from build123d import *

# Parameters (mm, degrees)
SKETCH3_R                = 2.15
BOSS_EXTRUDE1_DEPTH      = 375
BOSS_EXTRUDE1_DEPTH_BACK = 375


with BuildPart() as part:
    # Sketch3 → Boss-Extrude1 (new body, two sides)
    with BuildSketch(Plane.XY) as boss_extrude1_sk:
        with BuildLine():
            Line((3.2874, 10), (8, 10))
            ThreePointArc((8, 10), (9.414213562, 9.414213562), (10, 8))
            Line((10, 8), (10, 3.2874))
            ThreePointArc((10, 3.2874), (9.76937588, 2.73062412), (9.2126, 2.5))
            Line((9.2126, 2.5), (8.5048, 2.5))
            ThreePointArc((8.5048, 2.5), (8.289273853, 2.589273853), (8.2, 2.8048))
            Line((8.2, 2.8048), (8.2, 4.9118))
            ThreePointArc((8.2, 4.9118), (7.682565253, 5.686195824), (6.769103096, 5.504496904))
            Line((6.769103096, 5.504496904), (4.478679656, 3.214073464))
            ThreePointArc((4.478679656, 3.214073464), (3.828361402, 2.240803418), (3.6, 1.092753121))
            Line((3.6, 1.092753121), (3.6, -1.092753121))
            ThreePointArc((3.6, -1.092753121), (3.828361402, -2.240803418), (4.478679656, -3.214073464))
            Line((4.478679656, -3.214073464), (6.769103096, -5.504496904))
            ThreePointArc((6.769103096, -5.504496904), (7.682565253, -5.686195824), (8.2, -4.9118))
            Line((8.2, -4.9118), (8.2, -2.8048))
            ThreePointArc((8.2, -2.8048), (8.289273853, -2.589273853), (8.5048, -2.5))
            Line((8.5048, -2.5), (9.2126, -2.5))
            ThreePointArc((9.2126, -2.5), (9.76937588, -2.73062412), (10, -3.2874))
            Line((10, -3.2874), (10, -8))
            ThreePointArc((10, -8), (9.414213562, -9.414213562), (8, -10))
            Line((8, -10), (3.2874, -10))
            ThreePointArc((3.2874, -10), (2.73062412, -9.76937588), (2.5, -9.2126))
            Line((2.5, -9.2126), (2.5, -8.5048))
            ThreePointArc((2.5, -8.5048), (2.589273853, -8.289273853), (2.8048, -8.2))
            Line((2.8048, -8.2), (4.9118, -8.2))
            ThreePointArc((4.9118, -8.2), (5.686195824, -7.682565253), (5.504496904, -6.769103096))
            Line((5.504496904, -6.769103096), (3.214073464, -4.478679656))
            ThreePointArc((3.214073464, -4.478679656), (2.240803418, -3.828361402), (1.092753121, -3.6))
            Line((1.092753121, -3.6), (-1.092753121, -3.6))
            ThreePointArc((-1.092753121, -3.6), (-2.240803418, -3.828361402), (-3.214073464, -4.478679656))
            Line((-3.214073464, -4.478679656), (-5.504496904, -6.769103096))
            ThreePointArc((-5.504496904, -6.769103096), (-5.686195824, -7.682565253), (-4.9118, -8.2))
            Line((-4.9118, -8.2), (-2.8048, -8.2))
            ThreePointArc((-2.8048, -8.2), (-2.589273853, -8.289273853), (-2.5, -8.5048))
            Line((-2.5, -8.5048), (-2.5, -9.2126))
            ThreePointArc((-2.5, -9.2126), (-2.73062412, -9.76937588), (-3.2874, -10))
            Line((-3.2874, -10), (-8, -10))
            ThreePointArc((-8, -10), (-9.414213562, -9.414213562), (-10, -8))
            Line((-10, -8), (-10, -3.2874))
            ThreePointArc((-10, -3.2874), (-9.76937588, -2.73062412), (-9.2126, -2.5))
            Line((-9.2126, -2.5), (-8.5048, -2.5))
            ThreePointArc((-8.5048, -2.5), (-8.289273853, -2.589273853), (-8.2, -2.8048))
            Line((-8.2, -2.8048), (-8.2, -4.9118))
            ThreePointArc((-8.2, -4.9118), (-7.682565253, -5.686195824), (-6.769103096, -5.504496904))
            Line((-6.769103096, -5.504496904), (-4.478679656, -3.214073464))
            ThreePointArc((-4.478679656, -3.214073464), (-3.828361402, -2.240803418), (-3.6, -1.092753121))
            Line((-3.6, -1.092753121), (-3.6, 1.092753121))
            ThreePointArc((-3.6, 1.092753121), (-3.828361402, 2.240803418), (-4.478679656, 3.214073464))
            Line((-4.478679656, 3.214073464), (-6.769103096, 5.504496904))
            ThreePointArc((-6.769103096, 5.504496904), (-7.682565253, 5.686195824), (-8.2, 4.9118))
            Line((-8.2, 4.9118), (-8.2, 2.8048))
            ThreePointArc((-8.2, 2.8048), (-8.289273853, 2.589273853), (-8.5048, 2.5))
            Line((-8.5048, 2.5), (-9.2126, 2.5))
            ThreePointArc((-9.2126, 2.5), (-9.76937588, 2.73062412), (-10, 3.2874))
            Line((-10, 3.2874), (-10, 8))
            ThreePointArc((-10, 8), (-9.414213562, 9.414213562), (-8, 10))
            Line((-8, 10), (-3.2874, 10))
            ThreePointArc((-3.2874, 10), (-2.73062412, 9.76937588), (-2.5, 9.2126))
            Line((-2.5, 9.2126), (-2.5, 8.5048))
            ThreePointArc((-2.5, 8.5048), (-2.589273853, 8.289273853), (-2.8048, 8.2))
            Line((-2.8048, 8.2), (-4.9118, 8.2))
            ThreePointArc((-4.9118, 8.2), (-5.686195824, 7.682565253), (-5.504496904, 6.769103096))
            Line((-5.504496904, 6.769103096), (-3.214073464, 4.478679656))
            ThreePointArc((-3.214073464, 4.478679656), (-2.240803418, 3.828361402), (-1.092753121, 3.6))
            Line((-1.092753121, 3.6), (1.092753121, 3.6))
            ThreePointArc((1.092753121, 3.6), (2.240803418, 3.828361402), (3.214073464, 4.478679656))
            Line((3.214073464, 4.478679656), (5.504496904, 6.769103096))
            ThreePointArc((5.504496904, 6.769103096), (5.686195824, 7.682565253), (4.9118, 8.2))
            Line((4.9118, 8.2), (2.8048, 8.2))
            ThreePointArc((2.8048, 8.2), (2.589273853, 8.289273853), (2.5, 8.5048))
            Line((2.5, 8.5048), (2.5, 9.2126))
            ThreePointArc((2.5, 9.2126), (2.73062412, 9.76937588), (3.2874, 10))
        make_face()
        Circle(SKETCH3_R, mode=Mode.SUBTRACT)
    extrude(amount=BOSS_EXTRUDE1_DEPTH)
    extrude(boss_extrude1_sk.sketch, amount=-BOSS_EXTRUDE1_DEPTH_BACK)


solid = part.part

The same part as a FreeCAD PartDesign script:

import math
import FreeCAD as App
import Part
import Sketcher
from FreeCAD import Vector

doc = App.newDocument("Part")
body = doc.addObject("PartDesign::Body", "Body")

# Sketch on XY plane
sketch1 = body.newObject("Sketcher::SketchObject", "Sketch")
sketch1.AttachmentSupport = (doc.getObject("XY_Plane"), [""])
sketch1.MapMode = "FlatFace"
sketch1.addGeometry([
    Part.LineSegment(Vector(8, 10, 0), Vector(3.2874, 10, 0)),  # 0
    Part.ArcOfCircle(Part.Circle(Vector(3.2874, 9.2126, 0), Vector(0, 0, 1), 0.7874), math.radians(90), math.radians(180)),  # 1
    Part.LineSegment(Vector(2.5, 9.2126, 0), Vector(2.5, 8.5048, 0)),  # 2
    Part.ArcOfCircle(Part.Circle(Vector(2.8048, 8.5048, 0), Vector(0, 0, 1), 0.3048), math.radians(180), math.radians(270)),  # 3
    Part.LineSegment(Vector(2.8048, 8.2, 0), Vector(4.9118, 8.2, 0)),  # 4
    Part.ArcOfCircle(Part.Circle(Vector(4.9118, 7.3618, 0), Vector(0, 0, 1), 0.8382), math.radians(-45), math.radians(90)),  # 5
    Part.LineSegment(Vector(5.504497, 6.769103, 0), Vector(3.214073, 4.47868, 0)),  # 6
    Part.ArcOfCircle(Part.Circle(Vector(1.092753, 6.6, 0), Vector(0, 0, 1), 3), math.radians(-90), math.radians(-45)),  # 7
    Part.LineSegment(Vector(1.092753, 3.6, 0), Vector(-1.092753, 3.6, 0)),  # 8
    Part.ArcOfCircle(Part.Circle(Vector(-1.092753, 6.6, 0), Vector(0, 0, 1), 3), math.radians(-135), math.radians(-90)),  # 9
    Part.LineSegment(Vector(-3.214073, 4.47868, 0), Vector(-5.504497, 6.769103, 0)),  # 10
    Part.ArcOfCircle(Part.Circle(Vector(-4.9118, 7.3618, 0), Vector(0, 0, 1), 0.8382), math.radians(90), math.radians(225)),  # 11
    Part.LineSegment(Vector(-4.9118, 8.2, 0), Vector(-2.8048, 8.2, 0)),  # 12
    Part.ArcOfCircle(Part.Circle(Vector(-2.8048, 8.5048, 0), Vector(0, 0, 1), 0.3048), math.radians(-90), math.radians(0)),  # 13
    Part.LineSegment(Vector(-2.5, 8.5048, 0), Vector(-2.5, 9.2126, 0)),  # 14
    Part.ArcOfCircle(Part.Circle(Vector(-3.2874, 9.2126, 0), Vector(0, 0, 1), 0.7874), math.radians(0), math.radians(90)),  # 15
    Part.LineSegment(Vector(-3.2874, 10, 0), Vector(-8, 10, 0)),  # 16
    Part.ArcOfCircle(Part.Circle(Vector(-8, 8, 0), Vector(0, 0, 1), 2), math.radians(90), math.radians(180)),  # 17
    Part.LineSegment(Vector(-10, 8, 0), Vector(-10, 3.2874, 0)),  # 18
    Part.ArcOfCircle(Part.Circle(Vector(-9.2126, 3.2874, 0), Vector(0, 0, 1), 0.7874), math.radians(180), math.radians(270)),  # 19
    Part.LineSegment(Vector(-9.2126, 2.5, 0), Vector(-8.5048, 2.5, 0)),  # 20
    Part.ArcOfCircle(Part.Circle(Vector(-8.5048, 2.8048, 0), Vector(0, 0, 1), 0.3048), math.radians(-90), math.radians(0)),  # 21
    Part.LineSegment(Vector(-8.2, 2.8048, 0), Vector(-8.2, 4.9118, 0)),  # 22
    Part.ArcOfCircle(Part.Circle(Vector(-7.3618, 4.9118, 0), Vector(0, 0, 1), 0.8382), math.radians(45), math.radians(180)),  # 23
    Part.LineSegment(Vector(-6.769103, 5.504497, 0), Vector(-4.47868, 3.214073, 0)),  # 24
    Part.ArcOfCircle(Part.Circle(Vector(-6.6, 1.092753, 0), Vector(0, 0, 1), 3), math.radians(0), math.radians(45)),  # 25
    Part.LineSegment(Vector(-3.6, 1.092753, 0), Vector(-3.6, -1.092753, 0)),  # 26
    Part.ArcOfCircle(Part.Circle(Vector(-6.6, -1.092753, 0), Vector(0, 0, 1), 3), math.radians(-45), math.radians(0)),  # 27
    Part.LineSegment(Vector(-4.47868, -3.214073, 0), Vector(-6.769103, -5.504497, 0)),  # 28
    Part.ArcOfCircle(Part.Circle(Vector(-7.3618, -4.9118, 0), Vector(0, 0, 1), 0.8382), math.radians(180), math.radians(315)),  # 29
    Part.LineSegment(Vector(-8.2, -4.9118, 0), Vector(-8.2, -2.8048, 0)),  # 30
    Part.ArcOfCircle(Part.Circle(Vector(-8.5048, -2.8048, 0), Vector(0, 0, 1), 0.3048), math.radians(0), math.radians(90)),  # 31
    Part.LineSegment(Vector(-8.5048, -2.5, 0), Vector(-9.2126, -2.5, 0)),  # 32
    Part.ArcOfCircle(Part.Circle(Vector(-9.2126, -3.2874, 0), Vector(0, 0, 1), 0.7874), math.radians(90), math.radians(180)),  # 33
    Part.LineSegment(Vector(-10, -3.2874, 0), Vector(-10, -8, 0)),  # 34
    Part.ArcOfCircle(Part.Circle(Vector(-8, -8, 0), Vector(0, 0, 1), 2), math.radians(-180), math.radians(-90)),  # 35
    Part.LineSegment(Vector(-8, -10, 0), Vector(-3.2874, -10, 0)),  # 36
    Part.ArcOfCircle(Part.Circle(Vector(-3.2874, -9.2126, 0), Vector(0, 0, 1), 0.7874), math.radians(-90), math.radians(0)),  # 37
    Part.LineSegment(Vector(-2.5, -9.2126, 0), Vector(-2.5, -8.5048, 0)),  # 38
    Part.ArcOfCircle(Part.Circle(Vector(-2.8048, -8.5048, 0), Vector(0, 0, 1), 0.3048), math.radians(0), math.radians(90)),  # 39
    Part.LineSegment(Vector(-2.8048, -8.2, 0), Vector(-4.9118, -8.2, 0)),  # 40
    Part.ArcOfCircle(Part.Circle(Vector(-4.9118, -7.3618, 0), Vector(0, 0, 1), 0.8382), math.radians(135), math.radians(270)),  # 41
    Part.LineSegment(Vector(-5.504497, -6.769103, 0), Vector(-3.214073, -4.47868, 0)),  # 42
    Part.ArcOfCircle(Part.Circle(Vector(-1.092753, -6.6, 0), Vector(0, 0, 1), 3), math.radians(90), math.radians(135)),  # 43
    Part.LineSegment(Vector(-1.092753, -3.6, 0), Vector(1.092753, -3.6, 0)),  # 44
    Part.ArcOfCircle(Part.Circle(Vector(1.092753, -6.6, 0), Vector(0, 0, 1), 3), math.radians(45), math.radians(90)),  # 45
    Part.LineSegment(Vector(3.214073, -4.47868, 0), Vector(5.504497, -6.769103, 0)),  # 46
    Part.ArcOfCircle(Part.Circle(Vector(4.9118, -7.3618, 0), Vector(0, 0, 1), 0.8382), math.radians(-90), math.radians(45)),  # 47
    Part.LineSegment(Vector(4.9118, -8.2, 0), Vector(2.8048, -8.2, 0)),  # 48
    Part.ArcOfCircle(Part.Circle(Vector(2.8048, -8.5048, 0), Vector(0, 0, 1), 0.3048), math.radians(90), math.radians(180)),  # 49
    Part.LineSegment(Vector(2.5, -8.5048, 0), Vector(2.5, -9.2126, 0)),  # 50
    Part.ArcOfCircle(Part.Circle(Vector(3.2874, -9.2126, 0), Vector(0, 0, 1), 0.7874), math.radians(180), math.radians(270)),  # 51
    Part.LineSegment(Vector(3.2874, -10, 0), Vector(8, -10, 0)),  # 52
    Part.ArcOfCircle(Part.Circle(Vector(8, -8, 0), Vector(0, 0, 1), 2), math.radians(-90), math.radians(0)),  # 53
    Part.LineSegment(Vector(10, -8, 0), Vector(10, -3.2874, 0)),  # 54
    Part.ArcOfCircle(Part.Circle(Vector(9.2126, -3.2874, 0), Vector(0, 0, 1), 0.7874), math.radians(0), math.radians(90)),  # 55
    Part.LineSegment(Vector(9.2126, -2.5, 0), Vector(8.5048, -2.5, 0)),  # 56
    Part.ArcOfCircle(Part.Circle(Vector(8.5048, -2.8048, 0), Vector(0, 0, 1), 0.3048), math.radians(90), math.radians(180)),  # 57
    Part.LineSegment(Vector(8.2, -2.8048, 0), Vector(8.2, -4.9118, 0)),  # 58
    Part.ArcOfCircle(Part.Circle(Vector(7.3618, -4.9118, 0), Vector(0, 0, 1), 0.8382), math.radians(-135), math.radians(0)),  # 59
    Part.LineSegment(Vector(6.769103, -5.504497, 0), Vector(4.47868, -3.214073, 0)),  # 60
    Part.ArcOfCircle(Part.Circle(Vector(6.6, -1.092753, 0), Vector(0, 0, 1), 3), math.radians(180), math.radians(225)),  # 61
    Part.LineSegment(Vector(3.6, -1.092753, 0), Vector(3.6, 1.092753, 0)),  # 62
    Part.ArcOfCircle(Part.Circle(Vector(6.6, 1.092753, 0), Vector(0, 0, 1), 3), math.radians(135), math.radians(180)),  # 63
    Part.LineSegment(Vector(4.47868, 3.214073, 0), Vector(6.769103, 5.504497, 0)),  # 64
    Part.ArcOfCircle(Part.Circle(Vector(7.3618, 4.9118, 0), Vector(0, 0, 1), 0.8382), math.radians(0), math.radians(135)),  # 65
    Part.LineSegment(Vector(8.2, 4.9118, 0), Vector(8.2, 2.8048, 0)),  # 66
    Part.ArcOfCircle(Part.Circle(Vector(8.5048, 2.8048, 0), Vector(0, 0, 1), 0.3048), math.radians(180), math.radians(270)),  # 67
    Part.LineSegment(Vector(8.5048, 2.5, 0), Vector(9.2126, 2.5, 0)),  # 68
    Part.ArcOfCircle(Part.Circle(Vector(9.2126, 3.2874, 0), Vector(0, 0, 1), 0.7874), math.radians(-90), math.radians(0)),  # 69
    Part.LineSegment(Vector(10, 3.2874, 0), Vector(10, 8, 0)),  # 70
    Part.ArcOfCircle(Part.Circle(Vector(8, 8, 0), Vector(0, 0, 1), 2), math.radians(0), math.radians(90)),  # 71
    Part.Circle(Vector(0, 0, 0), Vector(0, 0, 1), 2.15),  # 72
], False)
sketch1.addConstraint([
    Sketcher.Constraint("Tangent", 0, 2, 1, 1),
    Sketcher.Constraint("Tangent", 1, 2, 2, 1),
    Sketcher.Constraint("Tangent", 2, 2, 3, 1),
    Sketcher.Constraint("Tangent", 3, 2, 4, 1),
    Sketcher.Constraint("Tangent", 4, 2, 5, 2),
    Sketcher.Constraint("Tangent", 5, 1, 6, 1),
    Sketcher.Constraint("Tangent", 6, 2, 7, 2),
    Sketcher.Constraint("Tangent", 7, 1, 8, 1),
    Sketcher.Constraint("Tangent", 8, 2, 9, 2),
    Sketcher.Constraint("Tangent", 9, 1, 10, 1),
    Sketcher.Constraint("Tangent", 10, 2, 11, 2),
    Sketcher.Constraint("Tangent", 11, 1, 12, 1),
    Sketcher.Constraint("Tangent", 12, 2, 13, 1),
    Sketcher.Constraint("Tangent", 13, 2, 14, 1),
    Sketcher.Constraint("Tangent", 14, 2, 15, 1),
    Sketcher.Constraint("Tangent", 15, 2, 16, 1),
    Sketcher.Constraint("Tangent", 16, 2, 17, 1),
    Sketcher.Constraint("Tangent", 17, 2, 18, 1),
    Sketcher.Constraint("Tangent", 18, 2, 19, 1),
    Sketcher.Constraint("Tangent", 19, 2, 20, 1),
    Sketcher.Constraint("Tangent", 20, 2, 21, 1),
    Sketcher.Constraint("Tangent", 21, 2, 22, 1),
    Sketcher.Constraint("Tangent", 22, 2, 23, 2),
    Sketcher.Constraint("Tangent", 23, 1, 24, 1),
    Sketcher.Constraint("Tangent", 24, 2, 25, 2),
    Sketcher.Constraint("Tangent", 25, 1, 26, 1),
    Sketcher.Constraint("Tangent", 26, 2, 27, 2),
    Sketcher.Constraint("Tangent", 27, 1, 28, 1),
    Sketcher.Constraint("Tangent", 28, 2, 29, 2),
    Sketcher.Constraint("Tangent", 29, 1, 30, 1),
    Sketcher.Constraint("Tangent", 30, 2, 31, 1),
    Sketcher.Constraint("Tangent", 31, 2, 32, 1),
    Sketcher.Constraint("Tangent", 32, 2, 33, 1),
    Sketcher.Constraint("Tangent", 33, 2, 34, 1),
    Sketcher.Constraint("Tangent", 34, 2, 35, 1),
    Sketcher.Constraint("Tangent", 35, 2, 36, 1),
    Sketcher.Constraint("Tangent", 36, 2, 37, 1),
    Sketcher.Constraint("Tangent", 37, 2, 38, 1),
    Sketcher.Constraint("Tangent", 38, 2, 39, 1),
    Sketcher.Constraint("Tangent", 39, 2, 40, 1),
    Sketcher.Constraint("Tangent", 40, 2, 41, 2),
    Sketcher.Constraint("Tangent", 41, 1, 42, 1),
    Sketcher.Constraint("Tangent", 42, 2, 43, 2),
    Sketcher.Constraint("Tangent", 43, 1, 44, 1),
    Sketcher.Constraint("Tangent", 44, 2, 45, 2),
    Sketcher.Constraint("Tangent", 45, 1, 46, 1),
    Sketcher.Constraint("Tangent", 46, 2, 47, 2),
    Sketcher.Constraint("Tangent", 47, 1, 48, 1),
    Sketcher.Constraint("Tangent", 48, 2, 49, 1),
    Sketcher.Constraint("Tangent", 49, 2, 50, 1),
    Sketcher.Constraint("Tangent", 50, 2, 51, 1),
    Sketcher.Constraint("Tangent", 51, 2, 52, 1),
    Sketcher.Constraint("Tangent", 52, 2, 53, 1),
    Sketcher.Constraint("Tangent", 53, 2, 54, 1),
    Sketcher.Constraint("Tangent", 54, 2, 55, 1),
    Sketcher.Constraint("Tangent", 55, 2, 56, 1),
    Sketcher.Constraint("Tangent", 56, 2, 57, 1),
    Sketcher.Constraint("Tangent", 57, 2, 58, 1),
    Sketcher.Constraint("Tangent", 58, 2, 59, 2),
    Sketcher.Constraint("Tangent", 59, 1, 60, 1),
    Sketcher.Constraint("Tangent", 60, 2, 61, 2),
    Sketcher.Constraint("Tangent", 61, 1, 62, 1),
    Sketcher.Constraint("Tangent", 62, 2, 63, 2),
    Sketcher.Constraint("Tangent", 63, 1, 64, 1),
    Sketcher.Constraint("Tangent", 64, 2, 65, 2),
    Sketcher.Constraint("Tangent", 65, 1, 66, 1),
    Sketcher.Constraint("Tangent", 66, 2, 67, 1),
    Sketcher.Constraint("Tangent", 67, 2, 68, 1),
    Sketcher.Constraint("Tangent", 68, 2, 69, 1),
    Sketcher.Constraint("Tangent", 69, 2, 70, 1),
    Sketcher.Constraint("Tangent", 70, 2, 71, 1),
    Sketcher.Constraint("Tangent", 71, 2, 0, 1),
    Sketcher.Constraint("Horizontal", 0),
    Sketcher.Constraint("Vertical", 2),
    Sketcher.Constraint("Horizontal", 4),
    Sketcher.Constraint("Horizontal", 8),
    Sketcher.Constraint("Horizontal", 12),
    Sketcher.Constraint("Vertical", 14),
    Sketcher.Constraint("Horizontal", 16),
    Sketcher.Constraint("Vertical", 18),
    Sketcher.Constraint("Horizontal", 20),
    Sketcher.Constraint("Vertical", 22),
    Sketcher.Constraint("Vertical", 26),
    Sketcher.Constraint("Vertical", 30),
    Sketcher.Constraint("Horizontal", 32),
    Sketcher.Constraint("Vertical", 34),
    Sketcher.Constraint("Horizontal", 36),
    Sketcher.Constraint("Vertical", 38),
    Sketcher.Constraint("Horizontal", 40),
    Sketcher.Constraint("Horizontal", 44),
    Sketcher.Constraint("Horizontal", 48),
    Sketcher.Constraint("Vertical", 50),
    Sketcher.Constraint("Horizontal", 52),
    Sketcher.Constraint("Vertical", 54),
    Sketcher.Constraint("Horizontal", 56),
    Sketcher.Constraint("Vertical", 58),
    Sketcher.Constraint("Vertical", 62),
    Sketcher.Constraint("Vertical", 66),
    Sketcher.Constraint("Horizontal", 68),
    Sketcher.Constraint("Vertical", 70),
    Sketcher.Constraint("Coincident", 72, 3, -1, 1),
    Sketcher.Constraint("Equal", 7, 9),
    Sketcher.Constraint("Equal", 5, 11),
    Sketcher.Constraint("Equal", 3, 13),
    Sketcher.Constraint("Equal", 1, 15),
    Sketcher.Constraint("Equal", 15, 19),
    Sketcher.Constraint("Equal", 13, 21),
    Sketcher.Constraint("Equal", 11, 23),
    Sketcher.Constraint("Equal", 9, 25),
    Sketcher.Constraint("Equal", 25, 27),
    Sketcher.Constraint("Equal", 23, 29),
    Sketcher.Constraint("Equal", 21, 31),
    Sketcher.Constraint("Equal", 19, 33),
    Sketcher.Constraint("Equal", 17, 35),
    Sketcher.Constraint("Equal", 33, 37),
    Sketcher.Constraint("Equal", 31, 39),
    Sketcher.Constraint("Equal", 29, 41),
    Sketcher.Constraint("Equal", 27, 43),
    Sketcher.Constraint("Equal", 43, 45),
    Sketcher.Constraint("Equal", 41, 47),
    Sketcher.Constraint("Equal", 39, 49),
    Sketcher.Constraint("Equal", 37, 51),
    Sketcher.Constraint("Equal", 35, 53),
    Sketcher.Constraint("Equal", 51, 55),
    Sketcher.Constraint("Equal", 49, 57),
    Sketcher.Constraint("Equal", 47, 59),
    Sketcher.Constraint("Equal", 45, 61),
    Sketcher.Constraint("Equal", 61, 63),
    Sketcher.Constraint("Equal", 59, 65),
    Sketcher.Constraint("Equal", 57, 67),
    Sketcher.Constraint("Equal", 55, 69),
    Sketcher.Constraint("Equal", 53, 71),
    Sketcher.Constraint("Symmetric", 1, 3, 37, 3, -1, 1),
    Sketcher.Constraint("Symmetric", 5, 3, 41, 3, -1, 1),
    Sketcher.Constraint("Symmetric", 7, 3, 43, 3, -1, 1),
    Sketcher.Constraint("Symmetric", 11, 3, 47, 3, -1, 1),
    Sketcher.Constraint("Symmetric", 15, 3, 51, 3, -1, 1),
    Sketcher.Constraint("Symmetric", 19, 3, 55, 3, -1, 1),
    Sketcher.Constraint("Symmetric", 23, 3, 59, 3, -1, 1),
    Sketcher.Constraint("Symmetric", 25, 3, 61, 3, -1, 1),
    Sketcher.Constraint("Symmetric", 29, 3, 65, 3, -1, 1),
    Sketcher.Constraint("Symmetric", 33, 3, 69, 3, -1, 1),
    Sketcher.Constraint("Symmetric", 5, 3, 11, 3, -2),
    Sketcher.Constraint("Symmetric", 1, 3, 15, 3, -2),
    Sketcher.Constraint("Symmetric", 33, 3, 55, 3, -2),
    Sketcher.Constraint("Symmetric", 29, 3, 59, 3, -2),
    Sketcher.Constraint("Perpendicular", 6, 10),
    Sketcher.Constraint("Parallel", 10, 24),
    Sketcher.Constraint("Perpendicular", 24, 28),
    Sketcher.Constraint("Perpendicular", 42, 46),
    Sketcher.Constraint("Perpendicular", 60, 64),
    Sketcher.Constraint("Horizontal", 27, 3, 61, 3),
    Sketcher.Constraint("Equal", 68, 2),
    Sketcher.Constraint("Equal", 52, 18),
    Sketcher.Constraint("Equal", 48, 22),
    Sketcher.Constraint("Equal", 44, 26),
    Sketcher.Constraint("Equal", 10, 24),
    Sketcher.Constraint("Radius", 7, 3.0),
    Sketcher.Constraint("Radius", 17, 2.0),
    Sketcher.Constraint("Diameter", 72, 4.3),
    Sketcher.Constraint("DistanceX", 17, 3, -1, 1, 8.0),
    Sketcher.Constraint("DistanceY", -1, 1, 7, 3, 6.6),
    Sketcher.Constraint("DistanceX", -1, 1, 1, 2, 2.5),
    Sketcher.Constraint("DistanceY", -1, 1, 3, 2, 8.2),
    Sketcher.Constraint("Radius", 1, 0.7874),
    Sketcher.Constraint("Radius", 3, 0.3048),
    Sketcher.Constraint("Radius", 5, 0.8382),
    Sketcher.Constraint("DistanceX", 4, 1, 4, 2, 2.107),
])
pad1 = body.newObject("PartDesign::Pad", "Pad")
pad1.Profile = sketch1
pad1.Type = "TwoLengths"
pad1.Length = 375
pad1.Length2 = 375

doc.recompute()
